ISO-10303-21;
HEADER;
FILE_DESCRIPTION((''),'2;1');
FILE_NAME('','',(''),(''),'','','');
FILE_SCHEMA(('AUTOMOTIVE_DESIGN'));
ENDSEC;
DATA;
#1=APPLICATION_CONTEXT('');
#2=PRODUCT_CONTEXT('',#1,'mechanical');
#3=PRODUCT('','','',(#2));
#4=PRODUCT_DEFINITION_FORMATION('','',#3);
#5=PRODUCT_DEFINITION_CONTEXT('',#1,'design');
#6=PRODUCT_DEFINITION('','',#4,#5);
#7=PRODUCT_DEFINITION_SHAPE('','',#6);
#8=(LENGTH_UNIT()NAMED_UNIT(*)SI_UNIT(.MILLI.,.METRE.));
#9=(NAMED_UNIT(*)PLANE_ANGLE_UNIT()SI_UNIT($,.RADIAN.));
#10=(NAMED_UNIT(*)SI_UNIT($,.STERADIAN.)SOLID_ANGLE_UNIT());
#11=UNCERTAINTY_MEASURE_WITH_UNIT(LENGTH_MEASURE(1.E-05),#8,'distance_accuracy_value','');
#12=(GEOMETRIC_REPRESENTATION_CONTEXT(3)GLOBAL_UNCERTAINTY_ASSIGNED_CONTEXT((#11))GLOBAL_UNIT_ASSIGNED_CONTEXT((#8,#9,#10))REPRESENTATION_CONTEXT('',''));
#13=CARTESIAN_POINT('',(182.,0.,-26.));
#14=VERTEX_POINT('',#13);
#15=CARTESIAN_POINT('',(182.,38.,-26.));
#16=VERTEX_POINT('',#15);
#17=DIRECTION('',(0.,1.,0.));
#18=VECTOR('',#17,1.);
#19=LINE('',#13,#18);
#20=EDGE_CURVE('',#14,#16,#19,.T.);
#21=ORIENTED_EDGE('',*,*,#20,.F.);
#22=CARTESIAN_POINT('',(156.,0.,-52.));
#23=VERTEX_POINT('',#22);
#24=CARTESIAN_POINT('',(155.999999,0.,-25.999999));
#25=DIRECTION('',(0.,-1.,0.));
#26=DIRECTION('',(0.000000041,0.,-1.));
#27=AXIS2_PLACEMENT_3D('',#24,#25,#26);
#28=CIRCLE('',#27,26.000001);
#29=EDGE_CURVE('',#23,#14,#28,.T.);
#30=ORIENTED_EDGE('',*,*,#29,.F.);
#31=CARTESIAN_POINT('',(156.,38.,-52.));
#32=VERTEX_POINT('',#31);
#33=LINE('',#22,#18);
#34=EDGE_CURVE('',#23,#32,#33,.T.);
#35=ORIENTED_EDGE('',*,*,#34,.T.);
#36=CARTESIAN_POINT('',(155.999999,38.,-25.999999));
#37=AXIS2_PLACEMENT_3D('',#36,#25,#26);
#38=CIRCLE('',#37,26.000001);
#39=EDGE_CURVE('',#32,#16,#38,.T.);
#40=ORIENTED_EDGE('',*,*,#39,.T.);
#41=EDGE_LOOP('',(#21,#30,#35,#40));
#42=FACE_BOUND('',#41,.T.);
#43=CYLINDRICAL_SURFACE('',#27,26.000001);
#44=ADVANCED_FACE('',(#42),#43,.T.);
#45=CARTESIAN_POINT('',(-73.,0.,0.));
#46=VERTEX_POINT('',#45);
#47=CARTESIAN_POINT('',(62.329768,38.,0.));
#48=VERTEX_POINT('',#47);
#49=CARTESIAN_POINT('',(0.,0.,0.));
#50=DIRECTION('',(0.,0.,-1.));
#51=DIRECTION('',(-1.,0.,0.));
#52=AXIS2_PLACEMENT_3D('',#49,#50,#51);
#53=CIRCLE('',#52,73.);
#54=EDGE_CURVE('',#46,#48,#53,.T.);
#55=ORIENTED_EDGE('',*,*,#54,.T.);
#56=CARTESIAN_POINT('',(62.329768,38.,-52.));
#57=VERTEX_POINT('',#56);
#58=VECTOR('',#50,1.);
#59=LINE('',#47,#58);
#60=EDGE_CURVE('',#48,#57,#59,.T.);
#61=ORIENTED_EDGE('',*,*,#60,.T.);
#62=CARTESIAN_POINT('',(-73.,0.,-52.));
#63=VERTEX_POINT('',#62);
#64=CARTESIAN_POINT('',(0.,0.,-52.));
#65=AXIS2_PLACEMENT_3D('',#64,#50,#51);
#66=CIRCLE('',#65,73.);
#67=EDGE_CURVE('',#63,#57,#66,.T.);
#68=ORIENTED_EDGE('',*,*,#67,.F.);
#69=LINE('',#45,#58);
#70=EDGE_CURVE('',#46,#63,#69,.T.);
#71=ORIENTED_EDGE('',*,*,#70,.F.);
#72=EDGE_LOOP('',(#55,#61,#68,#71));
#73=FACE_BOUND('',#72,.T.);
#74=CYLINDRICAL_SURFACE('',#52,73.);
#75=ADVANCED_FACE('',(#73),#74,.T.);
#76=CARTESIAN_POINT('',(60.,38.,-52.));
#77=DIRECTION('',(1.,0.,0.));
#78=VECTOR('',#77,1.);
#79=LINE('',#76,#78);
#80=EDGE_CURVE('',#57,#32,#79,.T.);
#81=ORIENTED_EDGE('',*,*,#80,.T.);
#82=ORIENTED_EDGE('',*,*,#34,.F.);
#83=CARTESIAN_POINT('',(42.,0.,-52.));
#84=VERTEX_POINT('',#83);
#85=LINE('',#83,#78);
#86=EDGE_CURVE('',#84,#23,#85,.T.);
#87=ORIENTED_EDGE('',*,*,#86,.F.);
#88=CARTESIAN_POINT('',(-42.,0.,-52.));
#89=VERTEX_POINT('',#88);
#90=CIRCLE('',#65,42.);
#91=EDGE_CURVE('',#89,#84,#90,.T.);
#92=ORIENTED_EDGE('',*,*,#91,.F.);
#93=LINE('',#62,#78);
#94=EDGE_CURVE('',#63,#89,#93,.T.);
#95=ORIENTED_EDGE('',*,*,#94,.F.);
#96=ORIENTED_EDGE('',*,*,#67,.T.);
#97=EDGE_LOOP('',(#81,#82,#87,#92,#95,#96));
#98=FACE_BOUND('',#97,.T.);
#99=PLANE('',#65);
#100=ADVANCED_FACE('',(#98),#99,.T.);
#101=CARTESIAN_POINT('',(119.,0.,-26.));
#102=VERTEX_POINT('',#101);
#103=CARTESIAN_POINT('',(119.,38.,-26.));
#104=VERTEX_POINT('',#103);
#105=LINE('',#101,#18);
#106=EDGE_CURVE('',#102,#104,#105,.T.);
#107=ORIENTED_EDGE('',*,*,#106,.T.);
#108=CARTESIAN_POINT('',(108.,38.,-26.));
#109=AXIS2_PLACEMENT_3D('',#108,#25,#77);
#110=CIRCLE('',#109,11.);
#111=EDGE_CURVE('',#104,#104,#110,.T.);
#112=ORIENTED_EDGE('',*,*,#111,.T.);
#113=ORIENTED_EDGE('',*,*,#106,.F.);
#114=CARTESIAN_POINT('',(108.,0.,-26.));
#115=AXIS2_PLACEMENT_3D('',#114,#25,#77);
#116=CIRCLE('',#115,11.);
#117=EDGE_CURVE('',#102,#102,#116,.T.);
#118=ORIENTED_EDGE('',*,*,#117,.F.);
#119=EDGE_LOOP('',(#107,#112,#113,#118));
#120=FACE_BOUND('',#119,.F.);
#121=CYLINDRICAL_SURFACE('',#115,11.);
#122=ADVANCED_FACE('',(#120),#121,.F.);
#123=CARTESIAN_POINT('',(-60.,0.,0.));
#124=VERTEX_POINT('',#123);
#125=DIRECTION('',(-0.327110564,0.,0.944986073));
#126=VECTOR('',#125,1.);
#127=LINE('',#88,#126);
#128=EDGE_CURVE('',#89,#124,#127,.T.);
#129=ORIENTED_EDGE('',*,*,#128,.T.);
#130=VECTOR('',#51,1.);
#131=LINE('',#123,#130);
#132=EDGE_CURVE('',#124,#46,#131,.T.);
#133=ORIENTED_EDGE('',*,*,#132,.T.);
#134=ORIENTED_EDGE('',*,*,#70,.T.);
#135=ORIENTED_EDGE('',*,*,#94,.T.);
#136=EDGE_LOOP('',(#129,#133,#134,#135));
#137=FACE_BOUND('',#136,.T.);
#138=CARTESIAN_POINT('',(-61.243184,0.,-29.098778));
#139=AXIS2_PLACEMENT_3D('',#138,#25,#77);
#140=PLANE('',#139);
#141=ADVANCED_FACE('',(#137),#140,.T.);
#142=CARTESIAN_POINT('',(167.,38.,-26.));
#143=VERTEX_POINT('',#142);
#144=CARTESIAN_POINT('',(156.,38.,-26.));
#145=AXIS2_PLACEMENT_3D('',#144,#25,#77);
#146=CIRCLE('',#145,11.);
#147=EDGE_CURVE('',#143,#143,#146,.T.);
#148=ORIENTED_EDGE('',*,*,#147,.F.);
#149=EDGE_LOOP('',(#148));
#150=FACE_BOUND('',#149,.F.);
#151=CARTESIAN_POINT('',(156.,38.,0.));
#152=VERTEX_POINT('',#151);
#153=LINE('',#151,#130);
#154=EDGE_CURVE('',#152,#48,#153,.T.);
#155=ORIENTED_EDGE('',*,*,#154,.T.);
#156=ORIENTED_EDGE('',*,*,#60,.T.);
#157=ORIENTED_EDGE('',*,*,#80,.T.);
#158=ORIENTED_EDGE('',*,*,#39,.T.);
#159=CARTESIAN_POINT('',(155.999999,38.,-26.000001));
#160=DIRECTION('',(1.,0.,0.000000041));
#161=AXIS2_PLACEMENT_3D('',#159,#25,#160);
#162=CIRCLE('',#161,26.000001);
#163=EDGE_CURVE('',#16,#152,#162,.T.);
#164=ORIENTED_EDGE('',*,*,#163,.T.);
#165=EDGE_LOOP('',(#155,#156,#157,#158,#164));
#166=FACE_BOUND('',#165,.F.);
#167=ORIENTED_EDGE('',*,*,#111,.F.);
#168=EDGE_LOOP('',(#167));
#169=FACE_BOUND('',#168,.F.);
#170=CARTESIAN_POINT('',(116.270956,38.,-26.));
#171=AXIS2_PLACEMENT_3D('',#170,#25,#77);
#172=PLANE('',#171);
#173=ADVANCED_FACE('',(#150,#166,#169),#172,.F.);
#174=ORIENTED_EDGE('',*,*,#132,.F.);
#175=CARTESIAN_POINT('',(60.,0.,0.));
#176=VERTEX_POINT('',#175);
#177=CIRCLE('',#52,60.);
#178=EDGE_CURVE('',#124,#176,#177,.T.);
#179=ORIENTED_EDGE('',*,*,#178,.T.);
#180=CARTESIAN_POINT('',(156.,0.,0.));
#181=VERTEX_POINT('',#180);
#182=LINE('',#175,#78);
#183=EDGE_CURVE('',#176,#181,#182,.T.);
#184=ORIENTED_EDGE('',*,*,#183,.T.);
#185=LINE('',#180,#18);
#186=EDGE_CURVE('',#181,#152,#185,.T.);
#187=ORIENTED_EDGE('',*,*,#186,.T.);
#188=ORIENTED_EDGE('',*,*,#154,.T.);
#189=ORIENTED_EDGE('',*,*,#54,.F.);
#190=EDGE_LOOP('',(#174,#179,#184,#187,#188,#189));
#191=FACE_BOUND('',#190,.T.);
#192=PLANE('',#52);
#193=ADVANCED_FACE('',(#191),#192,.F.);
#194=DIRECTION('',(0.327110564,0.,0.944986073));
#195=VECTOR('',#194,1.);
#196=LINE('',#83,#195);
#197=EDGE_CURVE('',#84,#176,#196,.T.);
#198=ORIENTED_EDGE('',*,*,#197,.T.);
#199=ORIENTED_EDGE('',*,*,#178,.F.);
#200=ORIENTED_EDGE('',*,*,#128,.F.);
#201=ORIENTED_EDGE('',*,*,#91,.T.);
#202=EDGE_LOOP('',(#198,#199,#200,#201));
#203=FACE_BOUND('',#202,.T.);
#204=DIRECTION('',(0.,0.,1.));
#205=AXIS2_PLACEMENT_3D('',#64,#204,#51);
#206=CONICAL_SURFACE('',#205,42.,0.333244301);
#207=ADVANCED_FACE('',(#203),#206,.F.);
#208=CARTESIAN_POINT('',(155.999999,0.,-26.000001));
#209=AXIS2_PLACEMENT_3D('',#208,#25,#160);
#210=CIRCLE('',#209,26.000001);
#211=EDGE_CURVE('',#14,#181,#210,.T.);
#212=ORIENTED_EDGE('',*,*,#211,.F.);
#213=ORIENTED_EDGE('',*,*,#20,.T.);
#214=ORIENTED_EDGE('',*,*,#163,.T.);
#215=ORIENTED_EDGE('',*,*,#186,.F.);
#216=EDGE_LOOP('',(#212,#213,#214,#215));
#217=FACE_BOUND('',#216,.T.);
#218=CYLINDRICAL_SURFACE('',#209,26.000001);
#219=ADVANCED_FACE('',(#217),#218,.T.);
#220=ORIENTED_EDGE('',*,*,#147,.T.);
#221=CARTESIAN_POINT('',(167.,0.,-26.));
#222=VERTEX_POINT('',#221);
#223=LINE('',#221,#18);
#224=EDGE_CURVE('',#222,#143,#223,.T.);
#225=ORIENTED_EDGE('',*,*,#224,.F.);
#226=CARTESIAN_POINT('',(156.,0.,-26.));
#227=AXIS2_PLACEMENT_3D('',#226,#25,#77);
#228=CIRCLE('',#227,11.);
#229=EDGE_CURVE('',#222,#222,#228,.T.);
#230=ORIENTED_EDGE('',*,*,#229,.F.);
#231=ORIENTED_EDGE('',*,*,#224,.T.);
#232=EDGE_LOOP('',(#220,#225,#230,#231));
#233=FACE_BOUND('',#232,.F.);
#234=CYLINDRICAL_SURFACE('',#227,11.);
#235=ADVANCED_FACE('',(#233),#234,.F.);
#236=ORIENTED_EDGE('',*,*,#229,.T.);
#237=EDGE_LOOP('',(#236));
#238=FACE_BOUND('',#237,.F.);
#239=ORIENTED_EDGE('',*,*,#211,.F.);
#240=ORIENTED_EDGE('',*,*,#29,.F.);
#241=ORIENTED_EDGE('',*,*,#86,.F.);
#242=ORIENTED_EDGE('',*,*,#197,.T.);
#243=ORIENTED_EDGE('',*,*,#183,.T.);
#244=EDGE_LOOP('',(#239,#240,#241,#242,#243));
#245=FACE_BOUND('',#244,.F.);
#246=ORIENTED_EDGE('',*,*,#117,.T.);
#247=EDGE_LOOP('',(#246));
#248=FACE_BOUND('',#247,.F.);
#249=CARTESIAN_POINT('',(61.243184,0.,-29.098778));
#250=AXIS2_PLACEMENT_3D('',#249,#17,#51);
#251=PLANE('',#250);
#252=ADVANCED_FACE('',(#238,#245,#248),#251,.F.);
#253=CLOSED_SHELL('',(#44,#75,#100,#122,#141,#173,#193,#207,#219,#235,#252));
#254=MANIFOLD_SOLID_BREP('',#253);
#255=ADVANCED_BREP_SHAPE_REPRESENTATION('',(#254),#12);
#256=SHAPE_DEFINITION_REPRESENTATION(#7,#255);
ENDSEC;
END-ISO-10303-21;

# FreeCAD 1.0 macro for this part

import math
import FreeCAD as App
import Part
import Sketcher

V = App.Vector

doc = App.newDocument("Part")
body = doc.addObject("PartDesign::Body", "Body")

sketch1 = body.newObject("Sketcher::SketchObject", "Sketch")
sketch1.AttachmentSupport = (doc.getObject("XZ_Plane"), [""])
sketch1.MapMode = "FlatFace"
sketch1.addGeometry([
    Part.LineSegment(V(-60, 0, 0), V(-73, 0, 0)),
    Part.LineSegment(V(-73, 0, 0), V(-73, -52, 0)),
    Part.LineSegment(V(-73, -52, 0), V(-42, -52, 0)),
    Part.LineSegment(V(-42, -52, 0), V(-60, 0, 0)),
], False)
sketch1.addConstraint([
    Sketcher.Constraint("Coincident", 0, 2, 1, 1),
    Sketcher.Constraint("Coincident", 1, 2, 2, 1),
    Sketcher.Constraint("Coincident", 2, 2, 3, 1),
    Sketcher.Constraint("Coincident", 3, 2, 0, 1),
    Sketcher.Constraint("Horizontal", 0),
    Sketcher.Constraint("Vertical", 1),
    Sketcher.Constraint("Horizontal", 2),
    Sketcher.Constraint("PointOnObject", 0, 2, -1),
    Sketcher.Constraint("DistanceX", 0, 2, 0, 1, 13.0),
    Sketcher.Constraint("DistanceX", 2, 1, 2, 2, 31.0),
    Sketcher.Constraint("DistanceY", 1, 2, 1, 1, 52.0),
    Sketcher.Constraint("DistanceX", 0, 2, -1, 1, 73.0),
])
revolution = body.newObject("PartDesign::Revolution", "Revolution")
revolution.Profile = sketch1
revolution.ReferenceAxis = (sketch1, ["V_Axis"])
revolution.Angle = 180
revolution.Reversed = True

sketch2 = body.newObject("Sketcher::SketchObject", "Sketch001")
sketch2.AttachmentSupport = (doc.getObject("XZ_Plane"), [""])
sketch2.MapMode = "FlatFace"
sketch2.addGeometry([
    Part.LineSegment(V(60, 0, 0), V(60, -52, 0)),
    Part.LineSegment(V(60, -52, 0), V(156, -52, 0)),
    Part.ArcOfCircle(Part.Circle(V(156, -26, 0), V(0, 0, 1), 26), math.radians(-90), math.radians(0)),
    Part.ArcOfCircle(Part.Circle(V(156, -26, 0), V(0, 0, 1), 26), math.radians(0), math.radians(90)),
    Part.LineSegment(V(156, 0, 0), V(60, 0, 0)),
    Part.Circle(V(108, -26, 0), V(0, 0, 1), 11),
    Part.Circle(V(156, -26, 0), V(0, 0, 1), 11),
], False)
sketch2.addConstraint([
    Sketcher.Constraint("Coincident", 0, 2, 1, 1),
    Sketcher.Constraint("Tangent", 1, 2, 2, 1),
    Sketcher.Constraint("Tangent", 2, 2, 3, 1),
    Sketcher.Constraint("Tangent", 3, 2, 4, 1),
    Sketcher.Constraint("Coincident", 4, 2, 0, 1),
    Sketcher.Constraint("Vertical", 0),
    Sketcher.Constraint("Horizontal", 1),
    Sketcher.Constraint("Horizontal", 4),
    Sketcher.Constraint("Coincident", 6, 3, 2, 3),
    Sketcher.Constraint("Equal", 2, 3),
    Sketcher.Constraint("Equal", 5, 6),
    Sketcher.Constraint("PointOnObject", 3, 2, -1),
    Sketcher.Constraint("Horizontal", 3, 3, 5, 3),
    Sketcher.Constraint("Horizontal", 6, 3, 2, 2),
    Sketcher.Constraint("Diameter", 5, 22.0),
    Sketcher.Constraint("Radius", 2, 26.000001),
    Sketcher.Constraint("DistanceX", 1, 1, 1, 2, 96.0),
    Sketcher.Constraint("DistanceX", -1, 1, 2, 3, 155.999999),
    Sketcher.Constraint("DistanceX", -1, 1, 5, 3, 108.0),
])
pad1 = body.newObject("PartDesign::Pad", "Pad")
pad1.Profile = sketch2
pad1.Length = 38
pad1.Reversed = True

doc.recompute()
